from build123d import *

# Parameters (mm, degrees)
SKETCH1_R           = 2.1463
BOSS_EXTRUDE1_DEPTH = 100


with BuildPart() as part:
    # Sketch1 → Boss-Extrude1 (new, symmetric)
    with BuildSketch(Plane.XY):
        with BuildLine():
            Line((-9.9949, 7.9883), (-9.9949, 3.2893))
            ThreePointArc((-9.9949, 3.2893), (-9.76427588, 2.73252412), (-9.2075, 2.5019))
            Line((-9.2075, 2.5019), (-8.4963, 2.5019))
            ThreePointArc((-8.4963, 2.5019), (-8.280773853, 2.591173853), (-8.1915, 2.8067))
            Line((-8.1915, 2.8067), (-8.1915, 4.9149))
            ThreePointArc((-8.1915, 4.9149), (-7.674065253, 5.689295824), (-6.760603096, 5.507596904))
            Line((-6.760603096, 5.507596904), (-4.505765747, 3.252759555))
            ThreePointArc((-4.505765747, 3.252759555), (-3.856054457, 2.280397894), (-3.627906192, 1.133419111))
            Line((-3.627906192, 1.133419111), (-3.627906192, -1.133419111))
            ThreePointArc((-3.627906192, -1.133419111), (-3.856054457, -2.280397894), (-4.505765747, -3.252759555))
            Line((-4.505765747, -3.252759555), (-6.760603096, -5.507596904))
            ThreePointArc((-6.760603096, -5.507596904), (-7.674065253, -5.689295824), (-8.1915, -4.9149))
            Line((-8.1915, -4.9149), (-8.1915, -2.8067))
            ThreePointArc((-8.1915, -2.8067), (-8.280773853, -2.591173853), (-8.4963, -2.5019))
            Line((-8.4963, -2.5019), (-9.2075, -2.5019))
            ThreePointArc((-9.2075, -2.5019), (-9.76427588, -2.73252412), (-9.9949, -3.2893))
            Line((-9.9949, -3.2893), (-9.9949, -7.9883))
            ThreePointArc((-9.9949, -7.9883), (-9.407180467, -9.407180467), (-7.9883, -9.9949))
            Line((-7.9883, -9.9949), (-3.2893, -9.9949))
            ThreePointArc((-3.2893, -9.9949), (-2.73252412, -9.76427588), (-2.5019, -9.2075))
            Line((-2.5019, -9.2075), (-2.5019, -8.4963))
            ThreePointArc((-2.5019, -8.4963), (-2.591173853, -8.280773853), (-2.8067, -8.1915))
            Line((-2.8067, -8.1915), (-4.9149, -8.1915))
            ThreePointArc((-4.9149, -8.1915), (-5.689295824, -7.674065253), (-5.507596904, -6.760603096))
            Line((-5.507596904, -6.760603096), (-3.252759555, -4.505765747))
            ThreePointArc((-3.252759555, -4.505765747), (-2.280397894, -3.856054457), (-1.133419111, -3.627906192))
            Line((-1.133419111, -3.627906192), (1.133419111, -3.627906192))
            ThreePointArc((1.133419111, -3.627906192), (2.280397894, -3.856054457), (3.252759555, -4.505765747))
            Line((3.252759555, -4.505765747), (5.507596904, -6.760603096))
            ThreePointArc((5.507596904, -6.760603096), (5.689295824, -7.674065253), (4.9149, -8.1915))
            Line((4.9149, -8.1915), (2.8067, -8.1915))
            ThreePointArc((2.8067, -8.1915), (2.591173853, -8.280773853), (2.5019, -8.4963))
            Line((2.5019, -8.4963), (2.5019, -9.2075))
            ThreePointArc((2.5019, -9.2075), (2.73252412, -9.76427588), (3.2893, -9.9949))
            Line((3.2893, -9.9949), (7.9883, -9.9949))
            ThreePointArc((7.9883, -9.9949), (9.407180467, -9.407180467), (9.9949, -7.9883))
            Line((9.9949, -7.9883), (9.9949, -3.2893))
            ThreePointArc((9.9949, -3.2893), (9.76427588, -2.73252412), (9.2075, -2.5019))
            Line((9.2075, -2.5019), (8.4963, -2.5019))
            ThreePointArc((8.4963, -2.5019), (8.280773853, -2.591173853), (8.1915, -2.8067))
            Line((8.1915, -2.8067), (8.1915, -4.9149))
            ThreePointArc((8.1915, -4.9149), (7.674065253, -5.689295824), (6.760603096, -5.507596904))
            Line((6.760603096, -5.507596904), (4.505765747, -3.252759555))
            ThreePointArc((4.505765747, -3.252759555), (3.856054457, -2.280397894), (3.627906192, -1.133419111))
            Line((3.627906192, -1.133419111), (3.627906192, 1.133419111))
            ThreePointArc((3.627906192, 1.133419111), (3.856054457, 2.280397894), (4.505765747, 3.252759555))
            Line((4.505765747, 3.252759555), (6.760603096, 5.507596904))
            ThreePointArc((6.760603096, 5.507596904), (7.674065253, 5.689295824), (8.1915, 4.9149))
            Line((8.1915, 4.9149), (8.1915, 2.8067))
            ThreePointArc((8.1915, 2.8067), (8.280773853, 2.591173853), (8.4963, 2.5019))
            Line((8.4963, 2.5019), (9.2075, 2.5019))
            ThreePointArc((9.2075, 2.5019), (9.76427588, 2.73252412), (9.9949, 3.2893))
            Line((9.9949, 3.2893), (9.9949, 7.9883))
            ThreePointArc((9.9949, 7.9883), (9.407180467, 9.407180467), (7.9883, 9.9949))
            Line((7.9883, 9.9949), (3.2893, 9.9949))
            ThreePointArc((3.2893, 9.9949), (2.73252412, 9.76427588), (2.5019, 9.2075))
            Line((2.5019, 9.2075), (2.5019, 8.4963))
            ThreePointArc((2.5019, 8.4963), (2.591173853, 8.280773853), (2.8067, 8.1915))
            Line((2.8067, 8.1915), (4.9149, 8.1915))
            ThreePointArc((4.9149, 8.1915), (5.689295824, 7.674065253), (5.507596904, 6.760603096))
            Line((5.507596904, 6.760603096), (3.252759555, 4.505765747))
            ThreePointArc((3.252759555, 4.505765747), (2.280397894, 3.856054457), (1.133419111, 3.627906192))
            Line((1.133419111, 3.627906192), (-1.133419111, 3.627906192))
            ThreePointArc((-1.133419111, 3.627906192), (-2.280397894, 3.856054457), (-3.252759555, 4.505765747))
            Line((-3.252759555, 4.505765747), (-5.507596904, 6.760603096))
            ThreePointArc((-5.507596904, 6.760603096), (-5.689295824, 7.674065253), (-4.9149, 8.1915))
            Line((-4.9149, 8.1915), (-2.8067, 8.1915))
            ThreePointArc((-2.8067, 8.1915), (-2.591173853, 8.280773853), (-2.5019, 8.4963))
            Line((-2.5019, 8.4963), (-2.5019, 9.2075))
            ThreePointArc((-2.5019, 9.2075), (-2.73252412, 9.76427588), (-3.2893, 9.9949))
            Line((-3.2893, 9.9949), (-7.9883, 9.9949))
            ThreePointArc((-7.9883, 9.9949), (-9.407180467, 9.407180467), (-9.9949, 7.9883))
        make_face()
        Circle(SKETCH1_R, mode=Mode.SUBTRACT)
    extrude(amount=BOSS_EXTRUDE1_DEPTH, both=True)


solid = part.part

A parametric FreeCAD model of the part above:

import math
import FreeCAD as App
import Part
import Sketcher
Q = App.Units.Quantity

doc = App.newDocument("Part")
body = doc.addObject("PartDesign::Body", "Body")

# Sketch on XY plane
sketch1 = body.newObject("Sketcher::SketchObject", "Sketch")
sketch1.AttachmentSupport = (doc.getObject("XY_Plane"), [""])
sketch1.MapMode = "FlatFace"
sketch1.addGeometry([
    Part.LineSegment(App.Vector(-9.99, 7.99, 0), App.Vector(-9.99, 3.29, 0)),  # 0
    Part.ArcOfCircle(Part.Circle(App.Vector(-9.21, 3.29, 0), App.Vector(0, 0, 1), 0.79), math.radians(180), math.radians(270)),  # 1
    Part.LineSegment(App.Vector(-9.21, 2.5, 0), App.Vector(-8.5, 2.5, 0)),  # 2
    Part.ArcOfCircle(Part.Circle(App.Vector(-8.5, 2.81, 0), App.Vector(0, 0, 1), 0.3), math.radians(-90), math.radians(0)),  # 3
    Part.LineSegment(App.Vector(-8.19, 2.81, 0), App.Vector(-8.19, 4.91, 0)),  # 4
    Part.ArcOfCircle(Part.Circle(App.Vector(-7.35, 4.91, 0), App.Vector(0, 0, 1), 0.84), math.radians(45), math.radians(180)),  # 5
    Part.LineSegment(App.Vector(-6.76, 5.51, 0), App.Vector(-4.51, 3.25, 0)),  # 6
    Part.ArcOfCircle(Part.Circle(App.Vector(-6.63, 1.13, 0), App.Vector(0, 0, 1), 3), math.radians(0), math.radians(45)),  # 7
    Part.LineSegment(App.Vector(-3.63, 1.13, 0), App.Vector(-3.63, -1.13, 0)),  # 8
    Part.ArcOfCircle(Part.Circle(App.Vector(-6.63, -1.13, 0), App.Vector(0, 0, 1), 3), math.radians(-45), math.radians(0)),  # 9
    Part.LineSegment(App.Vector(-4.51, -3.25, 0), App.Vector(-6.76, -5.51, 0)),  # 10
    Part.ArcOfCircle(Part.Circle(App.Vector(-7.35, -4.91, 0), App.Vector(0, 0, 1), 0.84), math.radians(180), math.radians(315)),  # 11
    Part.LineSegment(App.Vector(-8.19, -4.91, 0), App.Vector(-8.19, -2.81, 0)),  # 12
    Part.ArcOfCircle(Part.Circle(App.Vector(-8.5, -2.81, 0), App.Vector(0, 0, 1), 0.3), math.radians(0), math.radians(90)),  # 13
    Part.LineSegment(App.Vector(-8.5, -2.5, 0), App.Vector(-9.21, -2.5, 0)),  # 14
    Part.ArcOfCircle(Part.Circle(App.Vector(-9.21, -3.29, 0), App.Vector(0, 0, 1), 0.79), math.radians(90), math.radians(180)),  # 15
    Part.LineSegment(App.Vector(-9.99, -3.29, 0), App.Vector(-9.99, -7.99, 0)),  # 16
    Part.ArcOfCircle(Part.Circle(App.Vector(-7.99, -7.99, 0), App.Vector(0, 0, 1), 2.01), math.radians(180), math.radians(270)),  # 17
    Part.LineSegment(App.Vector(-7.99, -9.99, 0), App.Vector(-3.29, -9.99, 0)),  # 18
    Part.ArcOfCircle(Part.Circle(App.Vector(-3.29, -9.21, 0), App.Vector(0, 0, 1), 0.79), math.radians(-90), math.radians(0)),  # 19
    Part.LineSegment(App.Vector(-2.5, -9.21, 0), App.Vector(-2.5, -8.5, 0)),  # 20
    Part.ArcOfCircle(Part.Circle(App.Vector(-2.81, -8.5, 0), App.Vector(0, 0, 1), 0.3), math.radians(0), math.radians(90)),  # 21
    Part.LineSegment(App.Vector(-2.81, -8.19, 0), App.Vector(-4.91, -8.19, 0)),  # 22
    Part.ArcOfCircle(Part.Circle(App.Vector(-4.91, -7.35, 0), App.Vector(0, 0, 1), 0.84), math.radians(135), math.radians(270)),  # 23
    Part.LineSegment(App.Vector(-5.51, -6.76, 0), App.Vector(-3.25, -4.51, 0)),  # 24
    Part.ArcOfCircle(Part.Circle(App.Vector(-1.13, -6.63, 0), App.Vector(0, 0, 1), 3), math.radians(90), math.radians(135)),  # 25
    Part.LineSegment(App.Vector(-1.13, -3.63, 0), App.Vector(1.13, -3.63, 0)),  # 26
    Part.ArcOfCircle(Part.Circle(App.Vector(1.13, -6.63, 0), App.Vector(0, 0, 1), 3), math.radians(45), math.radians(90)),  # 27
    Part.LineSegment(App.Vector(3.25, -4.51, 0), App.Vector(5.51, -6.76, 0)),  # 28
    Part.ArcOfCircle(Part.Circle(App.Vector(4.91, -7.35, 0), App.Vector(0, 0, 1), 0.84), math.radians(-90), math.radians(45)),  # 29
    Part.LineSegment(App.Vector(4.91, -8.19, 0), App.Vector(2.81, -8.19, 0)),  # 30
    Part.ArcOfCircle(Part.Circle(App.Vector(2.81, -8.5, 0), App.Vector(0, 0, 1), 0.3), math.radians(90), math.radians(180)),  # 31
    Part.LineSegment(App.Vector(2.5, -8.5, 0), App.Vector(2.5, -9.21, 0)),  # 32
    Part.ArcOfCircle(Part.Circle(App.Vector(3.29, -9.21, 0), App.Vector(0, 0, 1), 0.79), math.radians(180), math.radians(270)),  # 33
    Part.LineSegment(App.Vector(3.29, -9.99, 0), App.Vector(7.99, -9.99, 0)),  # 34
    Part.ArcOfCircle(Part.Circle(App.Vector(7.99, -7.99, 0), App.Vector(0, 0, 1), 2.01), math.radians(-90), math.radians(0)),  # 35
    Part.LineSegment(App.Vector(9.99, -7.99, 0), App.Vector(9.99, -3.29, 0)),  # 36
    Part.ArcOfCircle(Part.Circle(App.Vector(9.21, -3.29, 0), App.Vector(0, 0, 1), 0.79), math.radians(0), math.radians(90)),  # 37
    Part.LineSegment(App.Vector(9.21, -2.5, 0), App.Vector(8.5, -2.5, 0)),  # 38
    Part.ArcOfCircle(Part.Circle(App.Vector(8.5, -2.81, 0), App.Vector(0, 0, 1), 0.3), math.radians(90), math.radians(180)),  # 39
    Part.LineSegment(App.Vector(8.19, -2.81, 0), App.Vector(8.19, -4.91, 0)),  # 40
    Part.ArcOfCircle(Part.Circle(App.Vector(7.35, -4.91, 0), App.Vector(0, 0, 1), 0.84), math.radians(-135), math.radians(0)),  # 41
    Part.LineSegment(App.Vector(6.76, -5.51, 0), App.Vector(4.51, -3.25, 0)),  # 42
    Part.ArcOfCircle(Part.Circle(App.Vector(6.63, -1.13, 0), App.Vector(0, 0, 1), 3), math.radians(180), math.radians(225)),  # 43
    Part.LineSegment(App.Vector(3.63, -1.13, 0), App.Vector(3.63, 1.13, 0)),  # 44
    Part.ArcOfCircle(Part.Circle(App.Vector(6.63, 1.13, 0), App.Vector(0, 0, 1), 3), math.radians(135), math.radians(180)),  # 45
    Part.LineSegment(App.Vector(4.51, 3.25, 0), App.Vector(6.76, 5.51, 0)),  # 46
    Part.ArcOfCircle(Part.Circle(App.Vector(7.35, 4.91, 0), App.Vector(0, 0, 1), 0.84), math.radians(0), math.radians(135)),  # 47
    Part.LineSegment(App.Vector(8.19, 4.91, 0), App.Vector(8.19, 2.81, 0)),  # 48
    Part.ArcOfCircle(Part.Circle(App.Vector(8.5, 2.81, 0), App.Vector(0, 0, 1), 0.3), math.radians(180), math.radians(270)),  # 49
    Part.LineSegment(App.Vector(8.5, 2.5, 0), App.Vector(9.21, 2.5, 0)),  # 50
    Part.ArcOfCircle(Part.Circle(App.Vector(9.21, 3.29, 0), App.Vector(0, 0, 1), 0.79), math.radians(-90), math.radians(0)),  # 51
    Part.LineSegment(App.Vector(9.99, 3.29, 0), App.Vector(9.99, 7.99, 0)),  # 52
    Part.ArcOfCircle(Part.Circle(App.Vector(7.99, 7.99, 0), App.Vector(0, 0, 1), 2.01), math.radians(0), math.radians(90)),  # 53
    Part.LineSegment(App.Vector(7.99, 9.99, 0), App.Vector(3.29, 9.99, 0)),  # 54
    Part.ArcOfCircle(Part.Circle(App.Vector(3.29, 9.21, 0), App.Vector(0, 0, 1), 0.79), math.radians(90), math.radians(180)),  # 55
    Part.LineSegment(App.Vector(2.5, 9.21, 0), App.Vector(2.5, 8.5, 0)),  # 56
    Part.ArcOfCircle(Part.Circle(App.Vector(2.81, 8.5, 0), App.Vector(0, 0, 1), 0.3), math.radians(180), math.radians(270)),  # 57
    Part.LineSegment(App.Vector(2.81, 8.19, 0), App.Vector(4.91, 8.19, 0)),  # 58
    Part.ArcOfCircle(Part.Circle(App.Vector(4.91, 7.35, 0), App.Vector(0, 0, 1), 0.84), math.radians(-45), math.radians(90)),  # 59
    Part.LineSegment(App.Vector(5.51, 6.76, 0), App.Vector(3.25, 4.51, 0)),  # 60
    Part.ArcOfCircle(Part.Circle(App.Vector(1.13, 6.63, 0), App.Vector(0, 0, 1), 3), math.radians(-90), math.radians(-45)),  # 61
    Part.LineSegment(App.Vector(1.13, 3.63, 0), App.Vector(-1.13, 3.63, 0)),  # 62
    Part.ArcOfCircle(Part.Circle(App.Vector(-1.13, 6.63, 0), App.Vector(0, 0, 1), 3), math.radians(-135), math.radians(-90)),  # 63
    Part.LineSegment(App.Vector(-3.25, 4.51, 0), App.Vector(-5.51, 6.76, 0)),  # 64
    Part.ArcOfCircle(Part.Circle(App.Vector(-4.91, 7.35, 0), App.Vector(0, 0, 1), 0.84), math.radians(90), math.radians(225)),  # 65
    Part.LineSegment(App.Vector(-4.91, 8.19, 0), App.Vector(-2.81, 8.19, 0)),  # 66
    Part.ArcOfCircle(Part.Circle(App.Vector(-2.81, 8.5, 0), App.Vector(0, 0, 1), 0.3), math.radians(-90), math.radians(0)),  # 67
    Part.LineSegment(App.Vector(-2.5, 8.5, 0), App.Vector(-2.5, 9.21, 0)),  # 68
    Part.ArcOfCircle(Part.Circle(App.Vector(-3.29, 9.21, 0), App.Vector(0, 0, 1), 0.79), math.radians(0), math.radians(90)),  # 69
    Part.LineSegment(App.Vector(-3.29, 9.99, 0), App.Vector(-7.99, 9.99, 0)),  # 70
    Part.ArcOfCircle(Part.Circle(App.Vector(-7.99, 7.99, 0), App.Vector(0, 0, 1), 2.01), math.radians(90), math.radians(180)),  # 71
    Part.Circle(App.Vector(0, 0, 0), App.Vector(0, 0, 1), 2.15),  # 72
], False)
sketch1.addConstraint([
    Sketcher.Constraint("Tangent", 0, 2, 1, 1),
    Sketcher.Constraint("Tangent", 1, 2, 2, 1),
    Sketcher.Constraint("Tangent", 2, 2, 3, 1),
    Sketcher.Constraint("Tangent", 3, 2, 4, 1),
    Sketcher.Constraint("Tangent", 4, 2, 5, 2),
    Sketcher.Constraint("Tangent", 5, 1, 6, 1),
    Sketcher.Constraint("Tangent", 6, 2, 7, 2),
    Sketcher.Constraint("Tangent", 7, 1, 8, 1),
    Sketcher.Constraint("Tangent", 8, 2, 9, 2),
    Sketcher.Constraint("Tangent", 9, 1, 10, 1),
    Sketcher.Constraint("Tangent", 10, 2, 11, 2),
    Sketcher.Constraint("Tangent", 11, 1, 12, 1),
    Sketcher.Constraint("Tangent", 12, 2, 13, 1),
    Sketcher.Constraint("Tangent", 13, 2, 14, 1),
    Sketcher.Constraint("Tangent", 14, 2, 15, 1),
    Sketcher.Constraint("Tangent", 15, 2, 16, 1),
    Sketcher.Constraint("Tangent", 16, 2, 17, 1),
    Sketcher.Constraint("Tangent", 17, 2, 18, 1),
    Sketcher.Constraint("Tangent", 18, 2, 19, 1),
    Sketcher.Constraint("Tangent", 19, 2, 20, 1),
    Sketcher.Constraint("Tangent", 20, 2, 21, 1),
    Sketcher.Constraint("Tangent", 21, 2, 22, 1),
    Sketcher.Constraint("Tangent", 22, 2, 23, 2),
    Sketcher.Constraint("Tangent", 23, 1, 24, 1),
    Sketcher.Constraint("Tangent", 24, 2, 25, 2),
    Sketcher.Constraint("Tangent", 25, 1, 26, 1),
    Sketcher.Constraint("Tangent", 26, 2, 27, 2),
    Sketcher.Constraint("Tangent", 27, 1, 28, 1),
    Sketcher.Constraint("Tangent", 28, 2, 29, 2),
    Sketcher.Constraint("Tangent", 29, 1, 30, 1),
    Sketcher.Constraint("Tangent", 30, 2, 31, 1),
    Sketcher.Constraint("Tangent", 31, 2, 32, 1),
    Sketcher.Constraint("Tangent", 32, 2, 33, 1),
    Sketcher.Constraint("Tangent", 33, 2, 34, 1),
    Sketcher.Constraint("Tangent", 34, 2, 35, 1),
    Sketcher.Constraint("Tangent", 35, 2, 36, 1),
    Sketcher.Constraint("Tangent", 36, 2, 37, 1),
    Sketcher.Constraint("Tangent", 37, 2, 38, 1),
    Sketcher.Constraint("Tangent", 38, 2, 39, 1),
    Sketcher.Constraint("Tangent", 39, 2, 40, 1),
    Sketcher.Constraint("Tangent", 40, 2, 41, 2),
    Sketcher.Constraint("Tangent", 41, 1, 42, 1),
    Sketcher.Constraint("Tangent", 42, 2, 43, 2),
    Sketcher.Constraint("Tangent", 43, 1, 44, 1),
    Sketcher.Constraint("Tangent", 44, 2, 45, 2),
    Sketcher.Constraint("Tangent", 45, 1, 46, 1),
    Sketcher.Constraint("Tangent", 46, 2, 47, 2),
    Sketcher.Constraint("Tangent", 47, 1, 48, 1),
    Sketcher.Constraint("Tangent", 48, 2, 49, 1),
    Sketcher.Constraint("Tangent", 49, 2, 50, 1),
    Sketcher.Constraint("Tangent", 50, 2, 51, 1),
    Sketcher.Constraint("Tangent", 51, 2, 52, 1),
    Sketcher.Constraint("Tangent", 52, 2, 53, 1),
    Sketcher.Constraint("Tangent", 53, 2, 54, 1),
    Sketcher.Constraint("Tangent", 54, 2, 55, 1),
    Sketcher.Constraint("Tangent", 55, 2, 56, 1),
    Sketcher.Constraint("Tangent", 56, 2, 57, 1),
    Sketcher.Constraint("Tangent", 57, 2, 58, 1),
    Sketcher.Constraint("Tangent", 58, 2, 59, 2),
    Sketcher.Constraint("Tangent", 59, 1, 60, 1),
    Sketcher.Constraint("Tangent", 60, 2, 61, 2),
    Sketcher.Constraint("Tangent", 61, 1, 62, 1),
    Sketcher.Constraint("Tangent", 62, 2, 63, 2),
    Sketcher.Constraint("Tangent", 63, 1, 64, 1),
    Sketcher.Constraint("Tangent", 64, 2, 65, 2),
    Sketcher.Constraint("Tangent", 65, 1, 66, 1),
    Sketcher.Constraint("Tangent", 66, 2, 67, 1),
    Sketcher.Constraint("Tangent", 67, 2, 68, 1),
    Sketcher.Constraint("Tangent", 68, 2, 69, 1),
    Sketcher.Constraint("Tangent", 69, 2, 70, 1),
    Sketcher.Constraint("Tangent", 70, 2, 71, 1),
    Sketcher.Constraint("Tangent", 71, 2, 0, 1),
    Sketcher.Constraint("Vertical", 0),
    Sketcher.Constraint("Horizontal", 2),
    Sketcher.Constraint("Vertical", 4),
    Sketcher.Constraint("Vertical", 8),
    Sketcher.Constraint("Vertical", 12),
    Sketcher.Constraint("Horizontal", 14),
    Sketcher.Constraint("Vertical", 16),
    Sketcher.Constraint("Horizontal", 18),
    Sketcher.Constraint("Vertical", 20),
    Sketcher.Constraint("Horizontal", 22),
    Sketcher.Constraint("Horizontal", 26),
    Sketcher.Constraint("Horizontal", 30),
    Sketcher.Constraint("Vertical", 32),
    Sketcher.Constraint("Horizontal", 34),
    Sketcher.Constraint("Vertical", 36),
    Sketcher.Constraint("Horizontal", 38),
    Sketcher.Constraint("Vertical", 40),
    Sketcher.Constraint("Vertical", 44),
    Sketcher.Constraint("Vertical", 48),
    Sketcher.Constraint("Horizontal", 50),
    Sketcher.Constraint("Vertical", 52),
    Sketcher.Constraint("Horizontal", 54),
    Sketcher.Constraint("Vertical", 56),
    Sketcher.Constraint("Horizontal", 58),
    Sketcher.Constraint("Horizontal", 62),
    Sketcher.Constraint("Horizontal", 66),
    Sketcher.Constraint("Vertical", 68),
    Sketcher.Constraint("Horizontal", 70),
    Sketcher.Constraint("Coincident", 72, 3, -1, 1),
    Sketcher.Constraint("Equal", 7, 9),
    Sketcher.Constraint("Equal", 5, 11),
    Sketcher.Constraint("Equal", 3, 13),
    Sketcher.Constraint("Equal", 1, 15),
    Sketcher.Constraint("Equal", 15, 19),
    Sketcher.Constraint("Equal", 13, 21),
    Sketcher.Constraint("Equal", 11, 23),
    Sketcher.Constraint("Equal", 9, 25),
    Sketcher.Constraint("Equal", 25, 27),
    Sketcher.Constraint("Equal", 23, 29),
    Sketcher.Constraint("Equal", 21, 31),
    Sketcher.Constraint("Equal", 19, 33),
    Sketcher.Constraint("Equal", 17, 35),
    Sketcher.Constraint("Equal", 33, 37),
    Sketcher.Constraint("Equal", 31, 39),
    Sketcher.Constraint("Equal", 29, 41),
    Sketcher.Constraint("Equal", 27, 43),
    Sketcher.Constraint("Equal", 43, 45),
    Sketcher.Constraint("Equal", 41, 47),
    Sketcher.Constraint("Equal", 39, 49),
    Sketcher.Constraint("Equal", 37, 51),
    Sketcher.Constraint("Equal", 35, 53),
    Sketcher.Constraint("Equal", 51, 55),
    Sketcher.Constraint("Equal", 49, 57),
    Sketcher.Constraint("Equal", 47, 59),
    Sketcher.Constraint("Equal", 45, 61),
    Sketcher.Constraint("Equal", 61, 63),
    Sketcher.Constraint("Equal", 59, 65),
    Sketcher.Constraint("Equal", 57, 67),
    Sketcher.Constraint("Equal", 55, 69),
    Sketcher.Constraint("Equal", 53, 71),
    Sketcher.Constraint("Symmetric", 1, 3, 37, 3, -1, 1),
    Sketcher.Constraint("Symmetric", 5, 3, 41, 3, -1, 1),
    Sketcher.Constraint("Symmetric", 7, 3, 43, 3, -1, 1),
    Sketcher.Constraint("Symmetric", 11, 3, 47, 3, -1, 1),
    Sketcher.Constraint("Symmetric", 15, 3, 51, 3, -1, 1),
    Sketcher.Constraint("Symmetric", 19, 3, 55, 3, -1, 1),
    Sketcher.Constraint("Symmetric", 23, 3, 59, 3, -1, 1),
    Sketcher.Constraint("Symmetric", 25, 3, 61, 3, -1, 1),
    Sketcher.Constraint("Symmetric", 29, 3, 65, 3, -1, 1),
    Sketcher.Constraint("Symmetric", 33, 3, 69, 3, -1, 1),
    Sketcher.Constraint("Symmetric", 23, 3, 29, 3, -2),
    Sketcher.Constraint("Symmetric", 19, 3, 33, 3, -2),
    Sketcher.Constraint("Symmetric", 15, 3, 37, 3, -2),
    Sketcher.Constraint("Symmetric", 11, 3, 41, 3, -2),
    Sketcher.Constraint("Perpendicular", 6, 10),
    Sketcher.Constraint("Parallel", 10, 24),
    Sketcher.Constraint("Perpendicular", 24, 28),
    Sketcher.Constraint("Perpendicular", 42, 46),
    Sketcher.Constraint("Perpendicular", 60, 64),
    Sketcher.Constraint("Horizontal", 9, 3, 43, 3),
    Sketcher.Constraint("Equal", 70, 0),
    Sketcher.Constraint("Equal", 66, 4),
    Sketcher.Constraint("Equal", 62, 8),
    Sketcher.Constraint("Equal", 50, 20),
    Sketcher.Constraint("Equal", 10, 24),
    Sketcher.Constraint("Diameter", 72, Q("0.169 in")),
    Sketcher.Constraint("Radius", 1, Q("0.031 in")),
    Sketcher.Constraint("Radius", 3, Q("0.012 in")),
    Sketcher.Constraint("Radius", 5, Q("0.033 in")),
    Sketcher.Constraint("Radius", 7, Q("0.118 in")),
    Sketcher.Constraint("Radius", 17, Q("0.079 in")),
    Sketcher.Constraint("DistanceX", 2, 1, 2, 2, Q("0.028 in")),
    Sketcher.Constraint("DistanceX", 18, 1, 18, 2, Q("0.185 in")),
    Sketcher.Constraint("DistanceX", 22, 2, 22, 1, Q("0.083 in")),
    Sketcher.Constraint("DistanceX", 1, 3, -1, 1, Q("0.3625 in")),
    Sketcher.Constraint("DistanceX", 26, 1, 26, 2, Q("2.266838 mm")),
])
pad1 = body.newObject("PartDesign::Pad", "Pad")
pad1.Profile = sketch1
pad1.Length = 200
pad1.Midplane = True

doc.recompute()
